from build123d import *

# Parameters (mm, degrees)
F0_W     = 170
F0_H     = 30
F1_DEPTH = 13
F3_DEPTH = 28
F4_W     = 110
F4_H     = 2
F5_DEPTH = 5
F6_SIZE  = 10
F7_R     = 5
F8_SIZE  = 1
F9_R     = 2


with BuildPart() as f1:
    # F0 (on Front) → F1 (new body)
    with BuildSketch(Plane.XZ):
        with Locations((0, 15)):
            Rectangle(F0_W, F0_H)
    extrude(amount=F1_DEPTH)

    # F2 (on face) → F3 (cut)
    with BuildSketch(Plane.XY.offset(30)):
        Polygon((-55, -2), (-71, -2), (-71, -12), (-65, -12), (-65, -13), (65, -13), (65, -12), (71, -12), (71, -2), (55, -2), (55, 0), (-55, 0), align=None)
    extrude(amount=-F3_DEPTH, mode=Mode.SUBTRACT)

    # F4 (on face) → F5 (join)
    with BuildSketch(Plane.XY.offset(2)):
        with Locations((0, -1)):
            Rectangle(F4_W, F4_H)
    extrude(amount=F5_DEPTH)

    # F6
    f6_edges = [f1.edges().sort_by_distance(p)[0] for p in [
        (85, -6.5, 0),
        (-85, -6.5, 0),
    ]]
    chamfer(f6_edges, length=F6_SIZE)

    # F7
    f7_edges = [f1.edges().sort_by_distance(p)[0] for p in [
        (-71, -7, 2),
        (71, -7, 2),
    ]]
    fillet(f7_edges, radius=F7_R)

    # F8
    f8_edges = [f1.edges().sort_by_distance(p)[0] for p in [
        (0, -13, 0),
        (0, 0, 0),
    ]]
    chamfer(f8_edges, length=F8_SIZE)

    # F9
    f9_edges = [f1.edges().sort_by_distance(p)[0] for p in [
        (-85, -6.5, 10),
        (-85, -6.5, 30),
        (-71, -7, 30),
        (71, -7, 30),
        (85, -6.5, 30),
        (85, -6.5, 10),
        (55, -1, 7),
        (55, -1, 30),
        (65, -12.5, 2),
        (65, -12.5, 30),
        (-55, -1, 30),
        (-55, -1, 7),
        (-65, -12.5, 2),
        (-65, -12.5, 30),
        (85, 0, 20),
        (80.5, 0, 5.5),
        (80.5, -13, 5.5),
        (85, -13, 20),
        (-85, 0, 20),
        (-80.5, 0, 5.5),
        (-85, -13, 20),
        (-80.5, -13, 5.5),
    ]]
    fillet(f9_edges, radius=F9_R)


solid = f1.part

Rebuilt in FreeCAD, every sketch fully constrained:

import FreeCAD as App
import Part
import Sketcher
from FreeCAD import Vector


def edges_at(feature, points):
    """Names of the edges that pass closest to the given points."""
    edges = feature.Shape.Edges
    near = lambda p: min(range(len(edges)), key=lambda i: edges[i].distToShape(Part.Vertex(*p))[0])
    return sorted({f"Edge{near(p) + 1}" for p in points})

doc = App.newDocument("Part")
body = doc.addObject("PartDesign::Body", "Body")

# Sketch on XZ plane
sketch1 = body.newObject("Sketcher::SketchObject", "Sketch")
sketch1.AttachmentSupport = (doc.getObject("XZ_Plane"), [""])
sketch1.MapMode = "FlatFace"
sketch1.addGeometry([
    Part.LineSegment(Vector(-85, 30, 0), Vector(-85, 0, 0)),
    Part.LineSegment(Vector(-85, 0, 0), Vector(85, 0, 0)),
    Part.LineSegment(Vector(85, 0, 0), Vector(85, 30, 0)),
    Part.LineSegment(Vector(85, 30, 0), Vector(-85, 30, 0)),
], False)
sketch1.addConstraint([
    Sketcher.Constraint("Coincident", 0, 2, 1, 1),
    Sketcher.Constraint("Coincident", 1, 2, 2, 1),
    Sketcher.Constraint("Coincident", 2, 2, 3, 1),
    Sketcher.Constraint("Coincident", 3, 2, 0, 1),
    Sketcher.Constraint("Vertical", 0),
    Sketcher.Constraint("Horizontal", 1),
    Sketcher.Constraint("Vertical", 2),
    Sketcher.Constraint("Horizontal", 3),
    Sketcher.Constraint("Symmetric", 0, 2, 1, 2, -1, 1),
    Sketcher.Constraint("DistanceX", 1, 1, 1, 2, 170.0),
    Sketcher.Constraint("DistanceY", 0, 2, 0, 1, 30.0),
])
pad1 = body.newObject("PartDesign::Pad", "Pad")
pad1.Profile = sketch1
pad1.Length = 13

# Sketch on XY plane
sketch2 = body.newObject("Sketcher::SketchObject", "Sketch001")
sketch2.AttachmentSupport = (doc.getObject("XY_Plane"), [""])
sketch2.MapMode = "FlatFace"
sketch2.AttachmentOffset = App.Placement(Vector(0, 0, 30), App.Rotation())
sketch2.addGeometry([
    Part.LineSegment(Vector(-55, -2, 0), Vector(-71, -2, 0)),  # 0
    Part.LineSegment(Vector(-71, -2, 0), Vector(-71, -12, 0)),  # 1
    Part.LineSegment(Vector(-71, -12, 0), Vector(-65, -12, 0)),  # 2
    Part.LineSegment(Vector(-65, -12, 0), Vector(-65, -13, 0)),  # 3
    Part.LineSegment(Vector(-65, -13, 0), Vector(65, -13, 0)),  # 4
    Part.LineSegment(Vector(65, -13, 0), Vector(65, -12, 0)),  # 5
    Part.LineSegment(Vector(65, -12, 0), Vector(71, -12, 0)),  # 6
    Part.LineSegment(Vector(71, -12, 0), Vector(71, -2, 0)),  # 7
    Part.LineSegment(Vector(71, -2, 0), Vector(55, -2, 0)),  # 8
    Part.LineSegment(Vector(55, -2, 0), Vector(55, 0, 0)),  # 9
    Part.LineSegment(Vector(55, 0, 0), Vector(-55, 0, 0)),  # 10
    Part.LineSegment(Vector(-55, 0, 0), Vector(-55, -2, 0)),  # 11
], False)
sketch2.addConstraint([
    Sketcher.Constraint("Coincident", 0, 2, 1, 1),
    Sketcher.Constraint("Coincident", 1, 2, 2, 1),
    Sketcher.Constraint("Coincident", 2, 2, 3, 1),
    Sketcher.Constraint("Coincident", 3, 2, 4, 1),
    Sketcher.Constraint("Coincident", 4, 2, 5, 1),
    Sketcher.Constraint("Coincident", 5, 2, 6, 1),
    Sketcher.Constraint("Coincident", 6, 2, 7, 1),
    Sketcher.Constraint("Coincident", 7, 2, 8, 1),
    Sketcher.Constraint("Coincident", 8, 2, 9, 1),
    Sketcher.Constraint("Coincident", 9, 2, 10, 1),
    Sketcher.Constraint("Coincident", 10, 2, 11, 1),
    Sketcher.Constraint("Coincident", 11, 2, 0, 1),
    Sketcher.Constraint("Horizontal", 0),
    Sketcher.Constraint("Vertical", 1),
    Sketcher.Constraint("Horizontal", 2),
    Sketcher.Constraint("Vertical", 3),
    Sketcher.Constraint("Horizontal", 4),
    Sketcher.Constraint("Vertical", 5),
    Sketcher.Constraint("Horizontal", 6),
    Sketcher.Constraint("Vertical", 7),
    Sketcher.Constraint("Horizontal", 8),
    Sketcher.Constraint("Vertical", 9),
    Sketcher.Constraint("Horizontal", 10),
    Sketcher.Constraint("Vertical", 11),
    Sketcher.Constraint("Symmetric", 9, 2, 10, 2, -1, 1),
    Sketcher.Constraint("Symmetric", 2, 2, 5, 2, -2),
    Sketcher.Constraint("Symmetric", 0, 2, 7, 2, -2),
    Sketcher.Constraint("DistanceX", 0, 2, 0, 1, 16.0),
    Sketcher.Constraint("DistanceX", 2, 1, 2, 2, 6.0),
    Sketcher.Constraint("DistanceX", 4, 1, 4, 2, 130.0),
    Sketcher.Constraint("DistanceY", 1, 2, 1, 1, 10.0),
    Sketcher.Constraint("DistanceY", 3, 2, 3, 1, 1.0),
    Sketcher.Constraint("DistanceY", 9, 1, 9, 2, 2.0),
])
pocket1 = body.newObject("PartDesign::Pocket", "Pocket")
pocket1.Profile = sketch2
pocket1.Length = 28

# Sketch on XY plane
sketch3 = body.newObject("Sketcher::SketchObject", "Sketch002")
sketch3.AttachmentSupport = (doc.getObject("XY_Plane"), [""])
sketch3.MapMode = "FlatFace"
sketch3.AttachmentOffset = App.Placement(Vector(0, 0, 2), App.Rotation())
sketch3.addGeometry([
    Part.LineSegment(Vector(-55, 0, 0), Vector(-55, -2, 0)),
    Part.LineSegment(Vector(-55, -2, 0), Vector(55, -2, 0)),
    Part.LineSegment(Vector(55, -2, 0), Vector(55, 0, 0)),
    Part.LineSegment(Vector(55, 0, 0), Vector(-55, 0, 0)),
], False)
sketch3.addConstraint([
    Sketcher.Constraint("Coincident", 0, 2, 1, 1),
    Sketcher.Constraint("Coincident", 1, 2, 2, 1),
    Sketcher.Constraint("Coincident", 2, 2, 3, 1),
    Sketcher.Constraint("Coincident", 3, 2, 0, 1),
    Sketcher.Constraint("Vertical", 0),
    Sketcher.Constraint("Horizontal", 1),
    Sketcher.Constraint("Vertical", 2),
    Sketcher.Constraint("Horizontal", 3),
    Sketcher.Constraint("Symmetric", 2, 2, 3, 2, -1, 1),
    Sketcher.Constraint("DistanceX", 1, 1, 1, 2, 110.0),
    Sketcher.Constraint("DistanceY", 0, 2, 0, 1, 2.0),
])
pad2 = body.newObject("PartDesign::Pad", "Pad001")
pad2.Profile = sketch3
pad2.Length = 5
doc.recompute()

chamfer = body.newObject("PartDesign::Chamfer", "Chamfer")
chamfer.Base = (pad2, edges_at(pad2, [(85, -6.5, 0), (-85, -6.5, 0)]))
chamfer.Size = 10
doc.recompute()

fillet = body.newObject("PartDesign::Fillet", "Fillet")
fillet.Base = (chamfer, edges_at(chamfer, [(-71, -7, 2), (71, -7, 2)]))
fillet.Radius = 5
doc.recompute()

chamfer2 = body.newObject("PartDesign::Chamfer", "Chamfer001")
chamfer2.Base = (fillet, edges_at(fillet, [(0, -13, 0), (0, 0, 0)]))
chamfer2.Size = 1
doc.recompute()

fillet2 = body.newObject("PartDesign::Fillet", "Fillet001")
fillet2.Base = (chamfer2, edges_at(chamfer2, [
    (-85, -6.5, 10),
    (-85, -6.5, 30),
    (-71, -7, 30),
    (71, -7, 30),
    (85, -6.5, 30),
    (85, -6.5, 10),
    (55, -1, 7),
    (55, -1, 30),
    (65, -12.5, 2),
    (65, -12.5, 30),
    (-55, -1, 30),
    (-55, -1, 7),
    (-65, -12.5, 2),
    (-65, -12.5, 30),
    (85, 0, 20),
    (80.5, 0, 5.5),
    (80.5, -13, 5.5),
    (85, -13, 20),
    (-85, 0, 20),
    (-80.5, 0, 5.5),
    (-85, -13, 20),
    (-80.5, -13, 5.5),
]))
fillet2.Radius = 2

doc.recompute()
